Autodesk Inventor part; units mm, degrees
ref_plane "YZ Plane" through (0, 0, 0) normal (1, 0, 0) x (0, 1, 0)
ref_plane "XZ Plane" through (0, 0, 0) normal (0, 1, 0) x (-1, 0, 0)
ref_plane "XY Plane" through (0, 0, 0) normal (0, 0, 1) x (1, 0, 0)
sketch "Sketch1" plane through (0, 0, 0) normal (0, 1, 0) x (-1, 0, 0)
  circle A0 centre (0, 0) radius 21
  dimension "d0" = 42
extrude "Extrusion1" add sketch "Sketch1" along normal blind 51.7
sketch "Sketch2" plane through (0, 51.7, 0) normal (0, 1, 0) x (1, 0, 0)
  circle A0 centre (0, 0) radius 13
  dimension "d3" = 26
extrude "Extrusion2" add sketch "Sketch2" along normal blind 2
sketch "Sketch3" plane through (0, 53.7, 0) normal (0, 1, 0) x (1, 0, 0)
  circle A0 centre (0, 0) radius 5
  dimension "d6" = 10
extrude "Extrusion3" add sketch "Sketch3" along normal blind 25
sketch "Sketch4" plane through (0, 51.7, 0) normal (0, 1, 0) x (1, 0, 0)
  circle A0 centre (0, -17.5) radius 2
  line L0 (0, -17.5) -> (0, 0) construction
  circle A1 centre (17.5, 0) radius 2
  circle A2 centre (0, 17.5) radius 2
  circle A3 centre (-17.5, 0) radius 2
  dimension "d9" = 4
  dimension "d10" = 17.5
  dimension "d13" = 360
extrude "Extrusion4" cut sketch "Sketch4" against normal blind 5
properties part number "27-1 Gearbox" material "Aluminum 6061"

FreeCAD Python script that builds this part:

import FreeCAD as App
import Part
import Sketcher
from FreeCAD import Vector

doc = App.newDocument("Part")
body = doc.addObject("PartDesign::Body", "Body")

sketch1 = doc.addObject("Sketcher::SketchObject", "Sketch")
body.addObject(sketch1)
sketch1.AttachmentSupport = (doc.XZ_Plane, [""])
sketch1.MapMode = "FlatFace"
sketch1.addGeometry(Part.Circle(Vector(0, 0, 0), Vector(0, 0, 1), 21), False)
sketch1.addConstraint([
    Sketcher.Constraint("Coincident", 0, 3, -1, 1),
    Sketcher.Constraint("Diameter", 0, 42.0),
])
pad1 = doc.addObject("PartDesign::Pad", "Pad")
body.addObject(pad1)
pad1.Profile = sketch1
pad1.Length = 51.7
pad1.Reversed = True

sketch2 = doc.addObject("Sketcher::SketchObject", "Sketch001")
body.addObject(sketch2)
sketch2.AttachmentSupport = (doc.XZ_Plane, [""])
sketch2.MapMode = "FlatFace"
sketch2.AttachmentOffset = App.Placement(Vector(0, 0, -51.7), App.Rotation())
sketch2.addGeometry(Part.Circle(Vector(0, 0, 0), Vector(0, 0, 1), 13), False)
sketch2.addConstraint([
    Sketcher.Constraint("Coincident", 0, 3, -1, 1),
    Sketcher.Constraint("Diameter", 0, 26.0),
])
pad2 = doc.addObject("PartDesign::Pad", "Pad001")
body.addObject(pad2)
pad2.Profile = sketch2
pad2.Length = 2
pad2.Reversed = True

sketch3 = doc.addObject("Sketcher::SketchObject", "Sketch002")
body.addObject(sketch3)
sketch3.AttachmentSupport = (doc.XZ_Plane, [""])
sketch3.MapMode = "FlatFace"
sketch3.AttachmentOffset = App.Placement(Vector(0, 0, -53.7), App.Rotation())
sketch3.addGeometry(Part.Circle(Vector(0, 0, 0), Vector(0, 0, 1), 5), False)
sketch3.addConstraint([
    Sketcher.Constraint("Coincident", 0, 3, -1, 1),
    Sketcher.Constraint("Diameter", 0, 10.0),
])
pad3 = doc.addObject("PartDesign::Pad", "Pad002")
body.addObject(pad3)
pad3.Profile = sketch3
pad3.Length = 25
pad3.Reversed = True

sketch4 = doc.addObject("Sketcher::SketchObject", "Sketch003")
body.addObject(sketch4)
sketch4.AttachmentSupport = (doc.XZ_Plane, [""])
sketch4.MapMode = "FlatFace"
sketch4.AttachmentOffset = App.Placement(Vector(0, 0, -51.7), App.Rotation())
sketch4.addGeometry([
    Part.Circle(Vector(0, 17.5, 0), Vector(0, 0, 1), 2),
    Part.Circle(Vector(17.5, 0, 0), Vector(0, 0, 1), 2),
    Part.Circle(Vector(0, -17.5, 0), Vector(0, 0, 1), 2),
    Part.Circle(Vector(-17.5, 0, 0), Vector(0, 0, 1), 2),
], False)
sketch4.addConstraint([
    Sketcher.Constraint("Equal", 0, 1),
    Sketcher.Constraint("Equal", 1, 2),
    Sketcher.Constraint("Equal", 2, 3),
    Sketcher.Constraint("Symmetric", 0, 3, 2, 3, -1, 1),
    Sketcher.Constraint("Symmetric", 1, 3, 3, 3, -1, 1),
    Sketcher.Constraint("PointOnObject", 0, 3, -2),
    Sketcher.Constraint("PointOnObject", 1, 3, -1),
    Sketcher.Constraint("Diameter", 0, 4.0),
    Sketcher.Constraint("DistanceY", -1, 1, 0, 3, 17.5),
    Sketcher.Constraint("DistanceX", -1, 1, 1, 3, 17.5),
])
pocket1 = doc.addObject("PartDesign::Pocket", "Pocket")
body.addObject(pocket1)
pocket1.Profile = sketch4
pocket1.Length = 5
pocket1.Reversed = True

doc.recompute()
